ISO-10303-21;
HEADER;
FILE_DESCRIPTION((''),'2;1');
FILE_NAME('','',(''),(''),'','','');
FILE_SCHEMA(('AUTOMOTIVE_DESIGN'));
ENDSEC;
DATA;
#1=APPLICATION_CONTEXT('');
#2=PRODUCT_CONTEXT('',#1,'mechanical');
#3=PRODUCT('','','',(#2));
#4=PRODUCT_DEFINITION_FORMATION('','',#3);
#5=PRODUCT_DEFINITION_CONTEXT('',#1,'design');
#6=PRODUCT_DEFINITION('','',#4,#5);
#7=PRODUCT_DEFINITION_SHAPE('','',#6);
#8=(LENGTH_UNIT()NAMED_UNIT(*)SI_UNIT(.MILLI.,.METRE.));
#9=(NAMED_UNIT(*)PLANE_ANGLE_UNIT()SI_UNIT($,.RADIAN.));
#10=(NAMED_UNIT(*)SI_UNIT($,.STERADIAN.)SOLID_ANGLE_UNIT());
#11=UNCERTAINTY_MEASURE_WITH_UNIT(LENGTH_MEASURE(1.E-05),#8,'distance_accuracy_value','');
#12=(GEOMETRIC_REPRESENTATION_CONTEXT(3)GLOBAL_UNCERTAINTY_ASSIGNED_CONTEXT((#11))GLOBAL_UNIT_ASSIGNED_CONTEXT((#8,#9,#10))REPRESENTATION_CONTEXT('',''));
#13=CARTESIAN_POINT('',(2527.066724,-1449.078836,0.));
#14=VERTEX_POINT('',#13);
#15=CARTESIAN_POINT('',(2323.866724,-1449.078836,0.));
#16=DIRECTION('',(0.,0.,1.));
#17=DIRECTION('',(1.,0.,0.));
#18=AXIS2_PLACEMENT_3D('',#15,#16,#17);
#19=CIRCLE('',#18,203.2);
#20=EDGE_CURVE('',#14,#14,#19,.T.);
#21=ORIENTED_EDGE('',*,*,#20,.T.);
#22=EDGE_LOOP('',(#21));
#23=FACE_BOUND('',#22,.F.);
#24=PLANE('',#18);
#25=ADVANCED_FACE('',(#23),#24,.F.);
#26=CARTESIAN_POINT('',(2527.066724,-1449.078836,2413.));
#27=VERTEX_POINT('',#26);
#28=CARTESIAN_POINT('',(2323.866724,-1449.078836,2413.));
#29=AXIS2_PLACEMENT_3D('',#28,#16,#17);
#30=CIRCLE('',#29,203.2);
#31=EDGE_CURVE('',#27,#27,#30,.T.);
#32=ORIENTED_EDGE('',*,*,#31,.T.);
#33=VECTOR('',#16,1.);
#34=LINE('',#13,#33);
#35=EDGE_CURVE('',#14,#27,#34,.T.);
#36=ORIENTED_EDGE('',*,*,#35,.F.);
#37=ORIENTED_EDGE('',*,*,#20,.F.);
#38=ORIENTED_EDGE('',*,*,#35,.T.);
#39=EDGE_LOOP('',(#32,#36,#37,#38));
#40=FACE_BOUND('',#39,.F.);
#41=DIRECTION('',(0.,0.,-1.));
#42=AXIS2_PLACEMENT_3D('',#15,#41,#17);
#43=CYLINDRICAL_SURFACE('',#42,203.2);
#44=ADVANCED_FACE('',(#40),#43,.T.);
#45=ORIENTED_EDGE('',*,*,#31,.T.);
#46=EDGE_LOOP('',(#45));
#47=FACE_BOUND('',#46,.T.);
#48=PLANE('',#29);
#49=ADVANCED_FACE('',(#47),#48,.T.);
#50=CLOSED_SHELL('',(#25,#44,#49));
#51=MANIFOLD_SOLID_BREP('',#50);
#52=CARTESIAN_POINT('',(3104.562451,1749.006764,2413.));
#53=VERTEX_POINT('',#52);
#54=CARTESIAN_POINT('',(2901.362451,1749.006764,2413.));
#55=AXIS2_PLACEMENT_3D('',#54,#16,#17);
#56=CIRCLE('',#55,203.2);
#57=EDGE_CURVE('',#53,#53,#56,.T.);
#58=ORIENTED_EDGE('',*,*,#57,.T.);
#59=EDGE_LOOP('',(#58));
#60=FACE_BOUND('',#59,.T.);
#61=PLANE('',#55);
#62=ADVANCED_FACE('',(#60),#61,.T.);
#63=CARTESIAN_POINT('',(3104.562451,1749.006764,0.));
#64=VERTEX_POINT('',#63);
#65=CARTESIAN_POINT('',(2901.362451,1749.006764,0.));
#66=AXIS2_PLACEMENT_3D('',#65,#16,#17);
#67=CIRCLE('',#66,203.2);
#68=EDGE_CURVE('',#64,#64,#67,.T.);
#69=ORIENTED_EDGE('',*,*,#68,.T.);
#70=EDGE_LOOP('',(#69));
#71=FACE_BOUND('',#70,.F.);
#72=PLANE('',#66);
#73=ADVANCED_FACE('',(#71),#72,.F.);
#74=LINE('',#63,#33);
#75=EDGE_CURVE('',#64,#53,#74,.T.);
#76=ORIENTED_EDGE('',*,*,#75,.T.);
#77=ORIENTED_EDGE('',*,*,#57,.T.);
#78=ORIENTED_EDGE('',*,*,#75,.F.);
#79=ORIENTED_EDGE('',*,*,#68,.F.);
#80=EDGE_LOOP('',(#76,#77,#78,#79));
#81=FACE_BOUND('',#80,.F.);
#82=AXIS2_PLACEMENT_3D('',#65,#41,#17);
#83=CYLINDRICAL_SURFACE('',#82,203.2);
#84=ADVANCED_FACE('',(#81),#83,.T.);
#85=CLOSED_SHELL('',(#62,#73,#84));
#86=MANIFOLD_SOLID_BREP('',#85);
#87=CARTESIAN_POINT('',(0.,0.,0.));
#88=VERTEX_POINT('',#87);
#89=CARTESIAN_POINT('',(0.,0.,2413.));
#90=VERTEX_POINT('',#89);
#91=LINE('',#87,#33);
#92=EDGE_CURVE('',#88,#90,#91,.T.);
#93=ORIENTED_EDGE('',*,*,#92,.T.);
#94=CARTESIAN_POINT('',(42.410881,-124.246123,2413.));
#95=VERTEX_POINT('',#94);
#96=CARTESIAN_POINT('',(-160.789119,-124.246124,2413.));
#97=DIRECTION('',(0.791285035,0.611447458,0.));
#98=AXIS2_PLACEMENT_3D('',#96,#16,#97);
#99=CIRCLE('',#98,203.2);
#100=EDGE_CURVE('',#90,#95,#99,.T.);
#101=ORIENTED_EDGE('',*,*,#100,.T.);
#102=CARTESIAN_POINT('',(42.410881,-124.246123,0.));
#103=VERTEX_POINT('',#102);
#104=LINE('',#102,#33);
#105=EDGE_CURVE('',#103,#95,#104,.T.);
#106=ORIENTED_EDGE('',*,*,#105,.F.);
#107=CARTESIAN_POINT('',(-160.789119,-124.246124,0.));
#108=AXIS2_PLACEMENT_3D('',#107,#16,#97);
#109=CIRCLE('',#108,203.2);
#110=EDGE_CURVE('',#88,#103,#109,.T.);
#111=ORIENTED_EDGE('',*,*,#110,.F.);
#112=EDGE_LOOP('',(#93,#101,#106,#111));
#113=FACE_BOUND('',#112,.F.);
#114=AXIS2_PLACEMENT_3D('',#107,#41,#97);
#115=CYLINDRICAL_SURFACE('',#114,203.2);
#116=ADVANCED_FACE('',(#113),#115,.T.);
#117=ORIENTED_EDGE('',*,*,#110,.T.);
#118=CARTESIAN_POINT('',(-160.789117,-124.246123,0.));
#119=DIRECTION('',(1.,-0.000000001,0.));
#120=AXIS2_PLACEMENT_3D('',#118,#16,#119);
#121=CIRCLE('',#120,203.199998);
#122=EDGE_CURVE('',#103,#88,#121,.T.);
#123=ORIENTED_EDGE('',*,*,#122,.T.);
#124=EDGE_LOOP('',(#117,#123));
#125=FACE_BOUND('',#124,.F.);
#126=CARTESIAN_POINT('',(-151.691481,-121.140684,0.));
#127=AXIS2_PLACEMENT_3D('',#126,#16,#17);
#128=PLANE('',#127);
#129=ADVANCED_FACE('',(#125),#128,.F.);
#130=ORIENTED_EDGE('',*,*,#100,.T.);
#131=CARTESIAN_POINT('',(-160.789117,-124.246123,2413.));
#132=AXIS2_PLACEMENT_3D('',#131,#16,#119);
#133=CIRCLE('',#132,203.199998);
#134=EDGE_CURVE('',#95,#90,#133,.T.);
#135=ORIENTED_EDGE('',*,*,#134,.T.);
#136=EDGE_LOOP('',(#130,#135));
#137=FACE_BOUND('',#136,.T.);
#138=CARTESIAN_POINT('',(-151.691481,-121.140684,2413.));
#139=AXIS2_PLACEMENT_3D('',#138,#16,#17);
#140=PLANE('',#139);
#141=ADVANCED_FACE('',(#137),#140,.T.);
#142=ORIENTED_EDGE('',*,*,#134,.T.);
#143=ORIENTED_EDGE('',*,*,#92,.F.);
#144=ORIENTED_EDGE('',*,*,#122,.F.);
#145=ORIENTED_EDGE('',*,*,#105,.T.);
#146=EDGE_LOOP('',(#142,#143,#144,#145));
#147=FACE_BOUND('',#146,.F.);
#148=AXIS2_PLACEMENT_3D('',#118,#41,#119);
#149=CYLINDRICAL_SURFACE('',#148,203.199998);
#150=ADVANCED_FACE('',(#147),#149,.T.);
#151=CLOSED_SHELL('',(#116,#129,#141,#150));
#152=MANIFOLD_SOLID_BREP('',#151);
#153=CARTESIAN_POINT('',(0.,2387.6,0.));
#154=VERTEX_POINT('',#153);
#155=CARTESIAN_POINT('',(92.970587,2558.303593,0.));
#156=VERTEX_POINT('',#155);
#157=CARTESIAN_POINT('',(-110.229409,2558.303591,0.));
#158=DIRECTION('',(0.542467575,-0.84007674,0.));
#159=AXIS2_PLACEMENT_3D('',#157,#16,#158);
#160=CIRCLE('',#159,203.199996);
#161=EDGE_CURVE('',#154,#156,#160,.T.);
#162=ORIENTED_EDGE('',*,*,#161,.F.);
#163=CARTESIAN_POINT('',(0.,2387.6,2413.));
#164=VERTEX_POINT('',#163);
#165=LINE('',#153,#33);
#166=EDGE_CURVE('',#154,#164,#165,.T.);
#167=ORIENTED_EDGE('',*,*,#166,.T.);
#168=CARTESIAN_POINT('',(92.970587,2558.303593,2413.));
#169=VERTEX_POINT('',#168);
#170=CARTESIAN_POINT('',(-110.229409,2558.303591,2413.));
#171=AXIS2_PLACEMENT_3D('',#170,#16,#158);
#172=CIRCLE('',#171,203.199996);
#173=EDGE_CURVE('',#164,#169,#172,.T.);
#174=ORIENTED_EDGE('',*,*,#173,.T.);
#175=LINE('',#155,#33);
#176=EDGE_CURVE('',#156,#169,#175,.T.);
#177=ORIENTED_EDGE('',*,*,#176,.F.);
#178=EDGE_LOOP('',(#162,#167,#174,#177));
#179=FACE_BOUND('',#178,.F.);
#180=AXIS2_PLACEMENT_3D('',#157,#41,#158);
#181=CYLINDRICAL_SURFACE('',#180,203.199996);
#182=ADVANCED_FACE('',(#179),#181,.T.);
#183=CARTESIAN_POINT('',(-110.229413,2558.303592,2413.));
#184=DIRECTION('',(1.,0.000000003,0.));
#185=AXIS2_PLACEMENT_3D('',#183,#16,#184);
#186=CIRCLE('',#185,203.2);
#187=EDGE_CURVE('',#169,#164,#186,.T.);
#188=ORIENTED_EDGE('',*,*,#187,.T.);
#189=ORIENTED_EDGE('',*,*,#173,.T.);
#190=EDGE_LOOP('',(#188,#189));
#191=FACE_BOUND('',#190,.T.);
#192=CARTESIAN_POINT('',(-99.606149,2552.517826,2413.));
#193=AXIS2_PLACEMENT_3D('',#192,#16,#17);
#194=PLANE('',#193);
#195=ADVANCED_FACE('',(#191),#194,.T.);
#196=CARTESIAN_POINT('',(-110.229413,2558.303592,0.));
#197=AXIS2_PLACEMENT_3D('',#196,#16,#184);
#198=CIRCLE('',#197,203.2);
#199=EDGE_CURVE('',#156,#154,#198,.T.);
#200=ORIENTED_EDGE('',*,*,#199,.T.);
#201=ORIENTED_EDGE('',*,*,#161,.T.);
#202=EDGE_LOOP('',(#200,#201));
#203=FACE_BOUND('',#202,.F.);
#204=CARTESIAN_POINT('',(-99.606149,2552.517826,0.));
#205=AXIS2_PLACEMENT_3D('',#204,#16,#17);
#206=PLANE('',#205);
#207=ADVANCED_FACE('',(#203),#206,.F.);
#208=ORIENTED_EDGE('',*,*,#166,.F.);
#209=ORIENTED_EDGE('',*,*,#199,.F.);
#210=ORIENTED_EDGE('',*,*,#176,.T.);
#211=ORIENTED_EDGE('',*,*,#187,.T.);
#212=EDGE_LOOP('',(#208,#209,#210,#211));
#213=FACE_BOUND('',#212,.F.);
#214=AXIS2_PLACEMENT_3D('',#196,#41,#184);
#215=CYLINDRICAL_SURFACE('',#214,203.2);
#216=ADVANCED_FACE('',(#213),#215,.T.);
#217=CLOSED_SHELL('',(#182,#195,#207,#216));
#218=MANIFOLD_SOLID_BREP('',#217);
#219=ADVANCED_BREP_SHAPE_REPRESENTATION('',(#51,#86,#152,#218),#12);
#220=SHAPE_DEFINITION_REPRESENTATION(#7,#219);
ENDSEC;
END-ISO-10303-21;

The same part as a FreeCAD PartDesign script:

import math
import FreeCAD as App
import Part
import Sketcher
from FreeCAD import Vector
Q = App.Units.Quantity

doc = App.newDocument("Part")
body = doc.addObject("PartDesign::Body", "Body")
body.AllowCompound = True

sketch1 = doc.addObject("Sketcher::SketchObject", "Sketch")
body.addObject(sketch1)
sketch1.AttachmentSupport = (doc.XY_Plane, [""])
sketch1.MapMode = "FlatFace"
sketch1.addGeometry([
    Part.ArcOfCircle(Part.Circle(Vector(-161, -124, 0), Vector(0, 0, 1), 203), math.radians(38), math.radians(360)),
    Part.ArcOfCircle(Part.Circle(Vector(-161, -124, 0), Vector(0, 0, 1), 203), math.radians(0), math.radians(38)),
    Part.ArcOfCircle(Part.Circle(Vector(-110, 2558, 0), Vector(0, 0, 1), 203), math.radians(0), math.radians(303)),
    Part.ArcOfCircle(Part.Circle(Vector(-110, 2558, 0), Vector(0, 0, 1), 203), math.radians(-57), math.radians(0)),
    Part.Circle(Vector(2901, 1749, 0), Vector(0, 0, 1), 203),
    Part.Circle(Vector(2324, -1449, 0), Vector(0, 0, 1), 203),
], False)
sketch1.addConstraint([
    Sketcher.Constraint("Tangent", 0, 1, 1, 2),
    Sketcher.Constraint("Coincident", 1, 1, 0, 2),
    Sketcher.Constraint("Tangent", 2, 1, 3, 2),
    Sketcher.Constraint("Coincident", 3, 1, 2, 2),
    Sketcher.Constraint("Coincident", 0, 1, -1, 1),
    Sketcher.Constraint("Equal", 0, 2),
    Sketcher.Constraint("Equal", 2, 4),
    Sketcher.Constraint("Equal", 4, 5),
    Sketcher.Constraint("PointOnObject", 3, 1, -2),
    Sketcher.Constraint("Horizontal", 0, 3, 1, 1),
    Sketcher.Constraint("Diameter", 4, Q("16 in")),
    Sketcher.Constraint("DistanceY", -1, 1, 3, 1, Q("94 in")),
    Sketcher.Constraint("DistanceY", 5, 3, 4, 3, 3198.0856),
    Sketcher.Constraint("DistanceX", 0, 3, -1, 1, 160.789119),
    Sketcher.Constraint("DistanceX", 3, 3, -1, 1, 110.229409),
    Sketcher.Constraint("DistanceX", -1, 1, 4, 3, 2901.362451),
    Sketcher.Constraint("DistanceY", 4, 3, 2, 3, 809.296828),
    Sketcher.Constraint("DistanceX", 1, 3, 5, 3, 2484.655841),
    Sketcher.Constraint("DistanceY", -1, 1, 2, 1, 2558.303593),
])
pad1 = doc.addObject("PartDesign::Pad", "Pad")
body.addObject(pad1)
pad1.Profile = sketch1
pad1.Length = Q("95 in")

doc.recompute()
